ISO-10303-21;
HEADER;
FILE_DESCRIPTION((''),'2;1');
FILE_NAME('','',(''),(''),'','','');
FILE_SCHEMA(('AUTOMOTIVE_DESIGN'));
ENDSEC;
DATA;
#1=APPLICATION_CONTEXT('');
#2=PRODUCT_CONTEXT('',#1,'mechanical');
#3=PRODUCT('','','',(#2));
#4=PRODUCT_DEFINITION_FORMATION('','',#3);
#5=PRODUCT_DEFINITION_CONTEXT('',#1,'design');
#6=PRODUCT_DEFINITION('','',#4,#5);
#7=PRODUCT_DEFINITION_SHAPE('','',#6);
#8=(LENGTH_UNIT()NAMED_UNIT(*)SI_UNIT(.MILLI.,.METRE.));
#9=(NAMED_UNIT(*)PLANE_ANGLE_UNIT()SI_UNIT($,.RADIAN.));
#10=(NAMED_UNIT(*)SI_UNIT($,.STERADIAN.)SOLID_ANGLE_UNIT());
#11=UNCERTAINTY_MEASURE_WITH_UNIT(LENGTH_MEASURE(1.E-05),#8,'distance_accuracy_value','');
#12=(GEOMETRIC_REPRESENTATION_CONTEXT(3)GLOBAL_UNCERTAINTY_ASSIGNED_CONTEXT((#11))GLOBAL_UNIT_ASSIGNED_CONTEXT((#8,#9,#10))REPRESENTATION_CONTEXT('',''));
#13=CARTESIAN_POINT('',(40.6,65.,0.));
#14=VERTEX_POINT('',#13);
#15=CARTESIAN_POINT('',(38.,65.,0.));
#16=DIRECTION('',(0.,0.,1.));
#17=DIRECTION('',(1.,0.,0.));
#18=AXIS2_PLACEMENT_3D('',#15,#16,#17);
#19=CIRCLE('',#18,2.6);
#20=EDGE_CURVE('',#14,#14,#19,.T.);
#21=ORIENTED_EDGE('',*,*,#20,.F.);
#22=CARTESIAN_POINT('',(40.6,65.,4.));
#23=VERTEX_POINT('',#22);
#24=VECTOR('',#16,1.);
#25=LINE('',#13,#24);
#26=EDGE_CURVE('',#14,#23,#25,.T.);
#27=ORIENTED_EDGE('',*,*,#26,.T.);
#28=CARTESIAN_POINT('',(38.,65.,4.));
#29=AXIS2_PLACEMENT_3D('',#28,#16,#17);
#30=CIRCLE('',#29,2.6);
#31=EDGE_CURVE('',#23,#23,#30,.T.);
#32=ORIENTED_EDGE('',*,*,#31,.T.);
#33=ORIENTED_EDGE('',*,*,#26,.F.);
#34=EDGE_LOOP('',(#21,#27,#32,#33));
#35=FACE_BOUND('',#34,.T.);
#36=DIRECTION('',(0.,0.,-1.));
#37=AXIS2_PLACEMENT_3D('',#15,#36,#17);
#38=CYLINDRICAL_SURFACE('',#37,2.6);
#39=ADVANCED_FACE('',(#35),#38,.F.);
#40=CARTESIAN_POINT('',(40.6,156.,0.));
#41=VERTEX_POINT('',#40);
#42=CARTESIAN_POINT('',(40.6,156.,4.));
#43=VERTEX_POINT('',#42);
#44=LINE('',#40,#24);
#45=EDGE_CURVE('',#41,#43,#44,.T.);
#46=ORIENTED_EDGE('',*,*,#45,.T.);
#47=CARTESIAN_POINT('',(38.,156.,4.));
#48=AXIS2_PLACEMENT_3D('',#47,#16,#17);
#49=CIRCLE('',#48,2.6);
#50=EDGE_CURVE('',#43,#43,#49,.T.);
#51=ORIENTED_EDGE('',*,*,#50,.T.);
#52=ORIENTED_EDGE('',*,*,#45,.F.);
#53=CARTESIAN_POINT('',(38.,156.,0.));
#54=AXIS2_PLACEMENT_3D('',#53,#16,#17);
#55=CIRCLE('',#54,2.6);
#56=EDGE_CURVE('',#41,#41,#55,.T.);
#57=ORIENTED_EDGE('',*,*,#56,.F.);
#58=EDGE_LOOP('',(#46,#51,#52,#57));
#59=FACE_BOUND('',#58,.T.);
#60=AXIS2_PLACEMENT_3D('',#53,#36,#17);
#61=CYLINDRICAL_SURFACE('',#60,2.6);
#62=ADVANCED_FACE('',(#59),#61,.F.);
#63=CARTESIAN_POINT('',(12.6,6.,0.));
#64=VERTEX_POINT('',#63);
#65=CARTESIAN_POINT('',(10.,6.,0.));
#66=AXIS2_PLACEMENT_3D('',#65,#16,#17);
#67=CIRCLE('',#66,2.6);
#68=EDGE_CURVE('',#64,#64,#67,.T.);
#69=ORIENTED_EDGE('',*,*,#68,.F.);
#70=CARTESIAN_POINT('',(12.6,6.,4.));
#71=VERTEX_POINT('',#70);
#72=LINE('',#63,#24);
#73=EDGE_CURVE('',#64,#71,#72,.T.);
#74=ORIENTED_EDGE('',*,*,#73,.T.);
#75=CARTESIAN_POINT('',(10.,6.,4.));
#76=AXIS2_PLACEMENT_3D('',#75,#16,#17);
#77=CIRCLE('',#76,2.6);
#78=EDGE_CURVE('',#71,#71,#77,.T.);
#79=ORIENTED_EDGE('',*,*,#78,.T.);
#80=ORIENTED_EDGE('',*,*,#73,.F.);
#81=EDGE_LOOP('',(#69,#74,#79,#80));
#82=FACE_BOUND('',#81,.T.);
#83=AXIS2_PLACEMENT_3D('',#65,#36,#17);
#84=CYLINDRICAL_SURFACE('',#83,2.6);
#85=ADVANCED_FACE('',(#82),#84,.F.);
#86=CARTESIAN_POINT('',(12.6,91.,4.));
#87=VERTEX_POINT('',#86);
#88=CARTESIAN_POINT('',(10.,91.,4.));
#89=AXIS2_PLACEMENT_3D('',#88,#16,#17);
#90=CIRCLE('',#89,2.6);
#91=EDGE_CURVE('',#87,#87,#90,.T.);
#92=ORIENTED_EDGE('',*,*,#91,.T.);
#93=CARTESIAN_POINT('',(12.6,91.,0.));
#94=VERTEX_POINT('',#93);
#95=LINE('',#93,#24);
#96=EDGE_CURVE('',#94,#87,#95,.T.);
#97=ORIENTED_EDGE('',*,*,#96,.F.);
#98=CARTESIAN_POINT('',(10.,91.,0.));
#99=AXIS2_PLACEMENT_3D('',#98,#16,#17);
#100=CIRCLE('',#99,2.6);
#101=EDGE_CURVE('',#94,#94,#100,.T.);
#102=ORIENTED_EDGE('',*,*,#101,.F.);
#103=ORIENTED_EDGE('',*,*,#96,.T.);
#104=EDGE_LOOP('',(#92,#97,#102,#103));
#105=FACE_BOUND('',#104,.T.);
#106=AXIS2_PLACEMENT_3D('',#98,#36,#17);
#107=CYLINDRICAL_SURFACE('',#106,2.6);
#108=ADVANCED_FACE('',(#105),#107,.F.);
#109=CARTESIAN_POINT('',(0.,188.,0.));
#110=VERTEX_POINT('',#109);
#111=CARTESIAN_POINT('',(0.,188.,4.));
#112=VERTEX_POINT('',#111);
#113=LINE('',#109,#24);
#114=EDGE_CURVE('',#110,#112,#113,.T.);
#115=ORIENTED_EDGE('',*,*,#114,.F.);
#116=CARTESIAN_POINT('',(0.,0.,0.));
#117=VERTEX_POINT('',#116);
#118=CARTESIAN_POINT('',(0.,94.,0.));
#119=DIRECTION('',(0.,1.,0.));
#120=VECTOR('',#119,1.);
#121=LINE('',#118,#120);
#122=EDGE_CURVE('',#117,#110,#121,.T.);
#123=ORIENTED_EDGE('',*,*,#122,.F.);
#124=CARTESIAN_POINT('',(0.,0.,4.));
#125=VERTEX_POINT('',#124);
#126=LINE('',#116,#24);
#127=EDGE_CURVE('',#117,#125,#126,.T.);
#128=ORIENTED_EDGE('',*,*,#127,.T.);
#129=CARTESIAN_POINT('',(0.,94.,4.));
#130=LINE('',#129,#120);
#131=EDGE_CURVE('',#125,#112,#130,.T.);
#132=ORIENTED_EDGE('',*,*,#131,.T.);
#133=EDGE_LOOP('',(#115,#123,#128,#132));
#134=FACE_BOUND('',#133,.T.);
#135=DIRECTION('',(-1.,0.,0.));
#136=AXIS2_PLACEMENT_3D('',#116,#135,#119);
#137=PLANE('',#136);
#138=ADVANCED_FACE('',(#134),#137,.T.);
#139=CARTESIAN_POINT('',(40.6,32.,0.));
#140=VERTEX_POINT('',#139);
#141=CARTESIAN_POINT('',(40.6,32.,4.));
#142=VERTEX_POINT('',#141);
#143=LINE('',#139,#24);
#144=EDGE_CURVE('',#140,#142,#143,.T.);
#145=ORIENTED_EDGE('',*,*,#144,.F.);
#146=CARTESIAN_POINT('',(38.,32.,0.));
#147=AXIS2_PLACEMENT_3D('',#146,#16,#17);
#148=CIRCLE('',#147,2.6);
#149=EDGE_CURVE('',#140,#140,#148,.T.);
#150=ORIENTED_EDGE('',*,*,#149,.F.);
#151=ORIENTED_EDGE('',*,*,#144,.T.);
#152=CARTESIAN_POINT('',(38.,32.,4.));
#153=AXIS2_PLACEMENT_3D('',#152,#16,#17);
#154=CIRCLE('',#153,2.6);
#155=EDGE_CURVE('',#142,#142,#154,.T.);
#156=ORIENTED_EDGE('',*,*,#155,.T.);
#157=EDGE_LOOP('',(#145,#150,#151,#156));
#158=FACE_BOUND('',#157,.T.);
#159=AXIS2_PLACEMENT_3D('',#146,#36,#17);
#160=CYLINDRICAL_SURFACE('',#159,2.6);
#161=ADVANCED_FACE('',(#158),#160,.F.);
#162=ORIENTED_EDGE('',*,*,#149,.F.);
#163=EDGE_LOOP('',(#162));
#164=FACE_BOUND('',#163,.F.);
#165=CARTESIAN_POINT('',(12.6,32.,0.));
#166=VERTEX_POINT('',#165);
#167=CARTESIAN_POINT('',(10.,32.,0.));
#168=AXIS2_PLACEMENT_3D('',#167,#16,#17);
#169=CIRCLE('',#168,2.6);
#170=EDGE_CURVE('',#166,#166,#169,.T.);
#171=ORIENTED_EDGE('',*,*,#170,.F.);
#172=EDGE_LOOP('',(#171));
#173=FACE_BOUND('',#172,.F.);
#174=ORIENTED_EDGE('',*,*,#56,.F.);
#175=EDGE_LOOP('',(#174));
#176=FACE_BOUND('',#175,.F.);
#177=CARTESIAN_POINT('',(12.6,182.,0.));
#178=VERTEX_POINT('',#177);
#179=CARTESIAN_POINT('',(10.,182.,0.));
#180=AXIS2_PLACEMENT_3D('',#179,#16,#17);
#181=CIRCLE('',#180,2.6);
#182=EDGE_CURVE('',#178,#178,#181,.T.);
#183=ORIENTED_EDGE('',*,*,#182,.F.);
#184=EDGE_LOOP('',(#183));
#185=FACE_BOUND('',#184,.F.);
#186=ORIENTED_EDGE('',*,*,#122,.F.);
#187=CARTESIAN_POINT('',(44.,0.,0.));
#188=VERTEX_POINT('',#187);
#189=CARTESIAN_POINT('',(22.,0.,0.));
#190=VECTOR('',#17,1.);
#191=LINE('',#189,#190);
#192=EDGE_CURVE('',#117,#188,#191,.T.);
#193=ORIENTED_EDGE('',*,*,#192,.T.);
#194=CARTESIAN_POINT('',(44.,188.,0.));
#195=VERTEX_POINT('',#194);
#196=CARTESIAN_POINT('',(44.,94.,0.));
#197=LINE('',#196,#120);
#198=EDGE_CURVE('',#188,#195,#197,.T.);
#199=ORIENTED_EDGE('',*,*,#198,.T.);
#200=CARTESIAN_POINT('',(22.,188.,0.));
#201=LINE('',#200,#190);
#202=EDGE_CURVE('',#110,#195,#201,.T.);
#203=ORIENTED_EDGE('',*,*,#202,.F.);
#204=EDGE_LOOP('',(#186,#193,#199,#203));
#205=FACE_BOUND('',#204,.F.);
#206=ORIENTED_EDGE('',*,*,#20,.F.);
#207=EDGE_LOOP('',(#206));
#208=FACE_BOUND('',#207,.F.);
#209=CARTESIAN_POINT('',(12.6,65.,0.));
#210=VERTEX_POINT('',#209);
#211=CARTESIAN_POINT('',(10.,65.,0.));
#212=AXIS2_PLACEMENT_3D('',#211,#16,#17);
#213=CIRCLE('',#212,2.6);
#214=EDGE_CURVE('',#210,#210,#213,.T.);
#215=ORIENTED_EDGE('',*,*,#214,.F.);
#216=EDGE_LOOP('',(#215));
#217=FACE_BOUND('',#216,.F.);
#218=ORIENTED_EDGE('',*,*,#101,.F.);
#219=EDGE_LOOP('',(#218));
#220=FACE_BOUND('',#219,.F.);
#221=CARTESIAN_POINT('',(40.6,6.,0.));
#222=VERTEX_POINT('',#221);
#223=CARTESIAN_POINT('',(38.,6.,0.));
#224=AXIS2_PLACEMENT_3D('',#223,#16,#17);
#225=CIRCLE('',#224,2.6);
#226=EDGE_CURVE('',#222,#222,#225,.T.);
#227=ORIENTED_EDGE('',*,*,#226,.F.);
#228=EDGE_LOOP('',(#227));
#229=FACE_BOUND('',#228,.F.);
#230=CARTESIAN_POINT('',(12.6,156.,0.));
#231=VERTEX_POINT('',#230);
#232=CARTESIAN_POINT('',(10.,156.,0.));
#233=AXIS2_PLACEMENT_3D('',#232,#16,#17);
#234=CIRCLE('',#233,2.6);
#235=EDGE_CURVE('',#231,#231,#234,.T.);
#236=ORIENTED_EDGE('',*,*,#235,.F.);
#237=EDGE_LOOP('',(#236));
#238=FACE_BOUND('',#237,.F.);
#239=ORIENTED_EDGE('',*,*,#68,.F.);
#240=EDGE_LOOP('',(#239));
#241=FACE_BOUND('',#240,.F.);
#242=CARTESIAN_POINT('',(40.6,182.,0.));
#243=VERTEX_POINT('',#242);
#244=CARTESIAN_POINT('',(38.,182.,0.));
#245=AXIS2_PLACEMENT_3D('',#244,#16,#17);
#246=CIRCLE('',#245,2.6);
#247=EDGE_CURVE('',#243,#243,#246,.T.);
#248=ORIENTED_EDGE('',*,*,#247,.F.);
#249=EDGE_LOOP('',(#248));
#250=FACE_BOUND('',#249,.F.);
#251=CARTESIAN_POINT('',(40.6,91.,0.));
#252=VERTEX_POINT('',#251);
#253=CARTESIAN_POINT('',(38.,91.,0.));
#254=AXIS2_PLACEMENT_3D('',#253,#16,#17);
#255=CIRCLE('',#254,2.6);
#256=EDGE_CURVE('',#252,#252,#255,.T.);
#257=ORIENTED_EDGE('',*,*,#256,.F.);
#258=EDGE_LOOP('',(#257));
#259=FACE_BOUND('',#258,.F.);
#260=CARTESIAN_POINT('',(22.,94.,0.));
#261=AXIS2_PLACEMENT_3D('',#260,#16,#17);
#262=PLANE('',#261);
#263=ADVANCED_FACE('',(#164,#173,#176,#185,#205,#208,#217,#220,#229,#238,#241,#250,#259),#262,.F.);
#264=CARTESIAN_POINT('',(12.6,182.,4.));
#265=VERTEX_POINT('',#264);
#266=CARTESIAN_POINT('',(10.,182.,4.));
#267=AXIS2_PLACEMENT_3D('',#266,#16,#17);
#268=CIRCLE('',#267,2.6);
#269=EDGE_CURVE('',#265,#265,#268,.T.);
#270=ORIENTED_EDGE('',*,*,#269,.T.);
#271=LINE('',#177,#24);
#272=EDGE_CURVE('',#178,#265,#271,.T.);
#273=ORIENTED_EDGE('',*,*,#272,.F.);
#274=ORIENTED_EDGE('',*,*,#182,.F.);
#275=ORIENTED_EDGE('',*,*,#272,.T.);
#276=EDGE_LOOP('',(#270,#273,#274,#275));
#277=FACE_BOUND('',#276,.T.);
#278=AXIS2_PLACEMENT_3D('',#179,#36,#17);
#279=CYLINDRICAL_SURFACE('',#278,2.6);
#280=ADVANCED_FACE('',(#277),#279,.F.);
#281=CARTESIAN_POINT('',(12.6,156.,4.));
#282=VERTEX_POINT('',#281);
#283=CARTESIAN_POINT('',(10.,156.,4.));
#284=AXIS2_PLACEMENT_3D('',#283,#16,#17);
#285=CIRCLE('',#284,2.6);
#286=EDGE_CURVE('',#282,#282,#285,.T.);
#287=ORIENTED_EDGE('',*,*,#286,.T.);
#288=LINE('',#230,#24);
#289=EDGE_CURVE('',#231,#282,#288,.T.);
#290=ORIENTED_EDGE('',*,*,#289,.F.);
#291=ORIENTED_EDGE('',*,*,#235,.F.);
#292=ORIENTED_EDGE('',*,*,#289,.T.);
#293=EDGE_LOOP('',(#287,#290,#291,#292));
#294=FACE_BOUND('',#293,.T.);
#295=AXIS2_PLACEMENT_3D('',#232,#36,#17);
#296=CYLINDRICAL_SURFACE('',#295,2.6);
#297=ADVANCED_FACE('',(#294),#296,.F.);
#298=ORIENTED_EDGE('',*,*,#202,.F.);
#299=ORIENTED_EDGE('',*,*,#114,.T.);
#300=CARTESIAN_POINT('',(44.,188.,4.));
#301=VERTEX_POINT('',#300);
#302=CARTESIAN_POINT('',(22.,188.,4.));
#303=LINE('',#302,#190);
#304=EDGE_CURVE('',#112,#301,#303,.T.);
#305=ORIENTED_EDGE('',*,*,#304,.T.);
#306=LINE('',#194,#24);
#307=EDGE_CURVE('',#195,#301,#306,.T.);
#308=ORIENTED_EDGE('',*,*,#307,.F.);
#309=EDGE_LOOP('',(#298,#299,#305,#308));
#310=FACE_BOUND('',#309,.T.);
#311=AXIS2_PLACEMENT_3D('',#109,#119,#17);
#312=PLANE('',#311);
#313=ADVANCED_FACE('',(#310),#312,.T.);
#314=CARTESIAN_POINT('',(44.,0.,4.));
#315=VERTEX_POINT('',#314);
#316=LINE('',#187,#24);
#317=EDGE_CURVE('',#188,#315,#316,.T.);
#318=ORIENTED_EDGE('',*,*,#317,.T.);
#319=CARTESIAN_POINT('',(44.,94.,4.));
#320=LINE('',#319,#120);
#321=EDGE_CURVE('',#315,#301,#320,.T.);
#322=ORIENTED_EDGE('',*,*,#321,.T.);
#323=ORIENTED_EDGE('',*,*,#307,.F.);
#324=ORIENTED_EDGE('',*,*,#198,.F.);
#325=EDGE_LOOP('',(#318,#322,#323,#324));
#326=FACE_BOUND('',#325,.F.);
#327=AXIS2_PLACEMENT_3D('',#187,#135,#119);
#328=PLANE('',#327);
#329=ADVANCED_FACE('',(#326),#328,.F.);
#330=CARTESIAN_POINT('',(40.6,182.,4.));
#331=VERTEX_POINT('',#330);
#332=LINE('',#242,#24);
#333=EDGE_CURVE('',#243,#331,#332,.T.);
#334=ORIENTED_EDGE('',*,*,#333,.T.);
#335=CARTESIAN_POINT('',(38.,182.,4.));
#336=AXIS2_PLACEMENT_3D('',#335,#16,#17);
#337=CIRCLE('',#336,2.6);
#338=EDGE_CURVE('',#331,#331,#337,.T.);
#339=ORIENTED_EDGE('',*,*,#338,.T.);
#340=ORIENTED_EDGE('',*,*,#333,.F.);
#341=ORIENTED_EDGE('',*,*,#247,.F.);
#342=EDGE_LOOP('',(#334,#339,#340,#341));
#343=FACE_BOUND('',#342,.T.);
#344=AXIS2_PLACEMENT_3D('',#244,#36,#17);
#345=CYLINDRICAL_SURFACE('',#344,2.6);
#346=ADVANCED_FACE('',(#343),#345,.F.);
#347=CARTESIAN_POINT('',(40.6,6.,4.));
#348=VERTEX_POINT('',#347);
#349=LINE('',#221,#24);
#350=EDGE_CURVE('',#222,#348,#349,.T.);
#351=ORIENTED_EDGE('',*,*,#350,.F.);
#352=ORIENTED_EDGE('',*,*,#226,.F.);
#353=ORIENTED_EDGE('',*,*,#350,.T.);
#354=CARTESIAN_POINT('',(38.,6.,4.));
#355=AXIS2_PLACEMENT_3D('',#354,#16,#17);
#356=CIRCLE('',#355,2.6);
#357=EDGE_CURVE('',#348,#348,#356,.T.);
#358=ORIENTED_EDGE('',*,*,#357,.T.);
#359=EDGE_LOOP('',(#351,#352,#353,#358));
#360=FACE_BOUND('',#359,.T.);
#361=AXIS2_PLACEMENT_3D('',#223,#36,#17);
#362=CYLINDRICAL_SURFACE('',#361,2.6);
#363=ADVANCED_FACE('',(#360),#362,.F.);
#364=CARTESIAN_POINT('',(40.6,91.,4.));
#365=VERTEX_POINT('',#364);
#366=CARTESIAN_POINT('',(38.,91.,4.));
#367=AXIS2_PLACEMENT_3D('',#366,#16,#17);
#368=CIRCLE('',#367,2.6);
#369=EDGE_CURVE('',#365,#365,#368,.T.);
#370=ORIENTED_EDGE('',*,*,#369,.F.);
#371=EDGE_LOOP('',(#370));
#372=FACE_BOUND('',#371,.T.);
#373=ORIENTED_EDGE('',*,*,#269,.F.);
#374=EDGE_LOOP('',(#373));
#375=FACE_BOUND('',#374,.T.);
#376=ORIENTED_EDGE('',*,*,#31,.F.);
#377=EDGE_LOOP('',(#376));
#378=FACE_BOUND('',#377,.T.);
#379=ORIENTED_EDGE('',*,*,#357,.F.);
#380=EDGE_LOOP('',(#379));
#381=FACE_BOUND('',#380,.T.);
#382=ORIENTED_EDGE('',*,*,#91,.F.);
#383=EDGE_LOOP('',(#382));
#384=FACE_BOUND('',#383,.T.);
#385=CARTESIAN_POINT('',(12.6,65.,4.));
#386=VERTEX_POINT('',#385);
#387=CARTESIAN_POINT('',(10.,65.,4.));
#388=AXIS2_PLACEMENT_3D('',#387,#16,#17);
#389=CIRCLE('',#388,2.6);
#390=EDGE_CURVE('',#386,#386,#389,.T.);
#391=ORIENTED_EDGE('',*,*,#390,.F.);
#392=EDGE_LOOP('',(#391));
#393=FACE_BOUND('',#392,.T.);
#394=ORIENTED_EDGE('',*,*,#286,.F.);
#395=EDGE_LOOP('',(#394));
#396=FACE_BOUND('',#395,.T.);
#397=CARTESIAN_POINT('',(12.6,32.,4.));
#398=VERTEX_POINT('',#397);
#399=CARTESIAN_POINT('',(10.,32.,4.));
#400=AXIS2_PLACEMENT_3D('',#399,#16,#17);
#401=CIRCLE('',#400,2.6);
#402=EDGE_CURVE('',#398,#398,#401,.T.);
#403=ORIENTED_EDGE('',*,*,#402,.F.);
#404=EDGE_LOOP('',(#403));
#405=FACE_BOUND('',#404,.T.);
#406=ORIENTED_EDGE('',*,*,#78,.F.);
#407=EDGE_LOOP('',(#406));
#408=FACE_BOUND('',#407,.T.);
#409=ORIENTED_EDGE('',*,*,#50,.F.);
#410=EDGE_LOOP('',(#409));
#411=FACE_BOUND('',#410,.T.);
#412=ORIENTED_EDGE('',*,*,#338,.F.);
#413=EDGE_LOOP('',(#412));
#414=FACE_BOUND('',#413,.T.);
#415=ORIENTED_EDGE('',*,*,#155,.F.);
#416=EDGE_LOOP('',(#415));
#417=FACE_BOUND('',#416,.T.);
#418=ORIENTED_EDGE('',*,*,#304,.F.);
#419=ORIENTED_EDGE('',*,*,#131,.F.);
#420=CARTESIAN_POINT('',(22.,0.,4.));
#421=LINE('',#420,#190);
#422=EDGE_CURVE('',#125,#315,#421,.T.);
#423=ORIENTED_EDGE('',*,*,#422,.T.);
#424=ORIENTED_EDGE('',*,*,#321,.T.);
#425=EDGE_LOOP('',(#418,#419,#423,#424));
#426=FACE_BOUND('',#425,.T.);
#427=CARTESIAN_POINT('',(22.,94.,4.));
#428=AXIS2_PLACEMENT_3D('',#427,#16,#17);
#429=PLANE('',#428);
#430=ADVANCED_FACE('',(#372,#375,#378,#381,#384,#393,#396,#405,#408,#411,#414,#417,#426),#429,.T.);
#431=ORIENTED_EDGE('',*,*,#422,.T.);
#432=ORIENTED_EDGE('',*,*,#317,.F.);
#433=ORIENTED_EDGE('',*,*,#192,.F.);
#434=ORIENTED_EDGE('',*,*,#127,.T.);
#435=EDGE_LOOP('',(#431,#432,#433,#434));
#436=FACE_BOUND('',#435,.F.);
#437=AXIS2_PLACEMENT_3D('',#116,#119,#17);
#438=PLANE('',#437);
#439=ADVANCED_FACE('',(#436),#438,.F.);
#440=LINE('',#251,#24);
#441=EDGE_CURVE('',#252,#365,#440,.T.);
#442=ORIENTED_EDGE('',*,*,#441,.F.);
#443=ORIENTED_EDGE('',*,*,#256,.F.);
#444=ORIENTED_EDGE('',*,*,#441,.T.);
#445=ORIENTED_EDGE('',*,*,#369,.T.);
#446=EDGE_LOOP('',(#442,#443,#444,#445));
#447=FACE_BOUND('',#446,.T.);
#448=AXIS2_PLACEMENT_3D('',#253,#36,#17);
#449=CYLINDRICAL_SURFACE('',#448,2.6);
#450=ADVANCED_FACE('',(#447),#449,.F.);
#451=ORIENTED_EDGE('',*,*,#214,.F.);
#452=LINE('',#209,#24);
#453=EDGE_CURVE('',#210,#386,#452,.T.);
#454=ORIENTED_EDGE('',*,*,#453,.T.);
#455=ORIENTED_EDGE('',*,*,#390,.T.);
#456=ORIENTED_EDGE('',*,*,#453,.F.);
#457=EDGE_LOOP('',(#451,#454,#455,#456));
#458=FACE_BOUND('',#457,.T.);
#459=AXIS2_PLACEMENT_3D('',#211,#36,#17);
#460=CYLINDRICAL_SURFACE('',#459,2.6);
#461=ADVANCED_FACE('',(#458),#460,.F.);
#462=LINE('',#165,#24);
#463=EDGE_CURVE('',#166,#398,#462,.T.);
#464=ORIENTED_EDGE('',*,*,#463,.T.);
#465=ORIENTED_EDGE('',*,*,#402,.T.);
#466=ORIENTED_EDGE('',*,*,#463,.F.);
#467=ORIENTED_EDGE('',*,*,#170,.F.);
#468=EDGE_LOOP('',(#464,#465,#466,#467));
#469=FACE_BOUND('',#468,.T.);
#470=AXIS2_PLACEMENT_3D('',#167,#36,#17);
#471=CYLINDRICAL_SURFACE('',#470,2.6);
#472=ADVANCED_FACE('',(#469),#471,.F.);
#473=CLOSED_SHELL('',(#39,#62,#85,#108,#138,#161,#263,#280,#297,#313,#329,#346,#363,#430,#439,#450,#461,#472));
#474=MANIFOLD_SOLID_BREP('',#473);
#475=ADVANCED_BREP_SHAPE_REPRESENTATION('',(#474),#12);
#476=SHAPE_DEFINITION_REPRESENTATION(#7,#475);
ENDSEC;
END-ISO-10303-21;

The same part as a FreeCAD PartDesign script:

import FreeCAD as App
import Part
import Sketcher

V = App.Vector
Q = App.Units.Quantity

doc = App.newDocument("Part")
body = doc.addObject("PartDesign::Body", "Body")

sketch1 = body.newObject("Sketcher::SketchObject", "Sketch")
sketch1.AttachmentSupport = (doc.getObject("XY_Plane"), [""])
sketch1.MapMode = "FlatFace"
sketch1.addGeometry(Part.LineSegment(V(0, 188, 0), V(0, 0, 0)), False)
sketch1.addGeometry(Part.LineSegment(V(0, 0, 0), V(44, 0, 0)), False)
sketch1.addGeometry(Part.LineSegment(V(44, 0, 0), V(44, 188, 0)), False)
sketch1.addGeometry(Part.LineSegment(V(44, 188, 0), V(0, 188, 0)), False)
sketch1.addGeometry(Part.Circle(V(10, 6, 0), V(0, 0, 1), 2.6), False)
sketch1.addGeometry(Part.Circle(V(10, 32, 0), V(0, 0, 1), 2.6), False)
sketch1.addGeometry(Part.Circle(V(10, 65, 0), V(0, 0, 1), 2.6), False)
sketch1.addGeometry(Part.Circle(V(10, 91, 0), V(0, 0, 1), 2.6), False)
sketch1.addGeometry(Part.Circle(V(38, 6, 0), V(0, 0, 1), 2.6), False)
sketch1.addGeometry(Part.Circle(V(38, 32, 0), V(0, 0, 1), 2.6), False)
sketch1.addGeometry(Part.Circle(V(38, 65, 0), V(0, 0, 1), 2.6), False)
sketch1.addGeometry(Part.Circle(V(38, 91, 0), V(0, 0, 1), 2.6), False)
sketch1.addGeometry(Part.Circle(V(10, 156, 0), V(0, 0, 1), 2.6), False)
sketch1.addGeometry(Part.Circle(V(10, 182, 0), V(0, 0, 1), 2.6), False)
sketch1.addGeometry(Part.Circle(V(38, 156, 0), V(0, 0, 1), 2.6), False)
sketch1.addGeometry(Part.Circle(V(38, 182, 0), V(0, 0, 1), 2.6), False)
sketch1.addConstraint(Sketcher.Constraint("Coincident", 0, 2, 1, 1))
sketch1.addConstraint(Sketcher.Constraint("Coincident", 1, 2, 2, 1))
sketch1.addConstraint(Sketcher.Constraint("Coincident", 2, 2, 3, 1))
sketch1.addConstraint(Sketcher.Constraint("Coincident", 3, 2, 0, 1))
sketch1.addConstraint(Sketcher.Constraint("Vertical", 0))
sketch1.addConstraint(Sketcher.Constraint("Horizontal", 1))
sketch1.addConstraint(Sketcher.Constraint("Vertical", 2))
sketch1.addConstraint(Sketcher.Constraint("Horizontal", 3))
sketch1.addConstraint(Sketcher.Constraint("Coincident", 0, 2, -1, 1))
sketch1.addConstraint(Sketcher.Constraint("Equal", 4, 5))
sketch1.addConstraint(Sketcher.Constraint("Equal", 5, 6))
sketch1.addConstraint(Sketcher.Constraint("Equal", 6, 7))
sketch1.addConstraint(Sketcher.Constraint("Equal", 7, 8))
sketch1.addConstraint(Sketcher.Constraint("Equal", 8, 9))
sketch1.addConstraint(Sketcher.Constraint("Equal", 9, 10))
sketch1.addConstraint(Sketcher.Constraint("Equal", 10, 11))
sketch1.addConstraint(Sketcher.Constraint("Equal", 11, 12))
sketch1.addConstraint(Sketcher.Constraint("Equal", 12, 13))
sketch1.addConstraint(Sketcher.Constraint("Equal", 13, 14))
sketch1.addConstraint(Sketcher.Constraint("Equal", 14, 15))
sketch1.addConstraint(Sketcher.Constraint("Horizontal", 4, 3, 8, 3))
sketch1.addConstraint(Sketcher.Constraint("Horizontal", 5, 3, 9, 3))
sketch1.addConstraint(Sketcher.Constraint("Horizontal", 6, 3, 10, 3))
sketch1.addConstraint(Sketcher.Constraint("Horizontal", 7, 3, 11, 3))
sketch1.addConstraint(Sketcher.Constraint("Horizontal", 12, 3, 14, 3))
sketch1.addConstraint(Sketcher.Constraint("Horizontal", 13, 3, 15, 3))
sketch1.addConstraint(Sketcher.Constraint("Vertical", 4, 3, 5, 3))
sketch1.addConstraint(Sketcher.Constraint("Vertical", 5, 3, 6, 3))
sketch1.addConstraint(Sketcher.Constraint("Vertical", 6, 3, 7, 3))
sketch1.addConstraint(Sketcher.Constraint("Vertical", 8, 3, 9, 3))
sketch1.addConstraint(Sketcher.Constraint("Vertical", 9, 3, 10, 3))
sketch1.addConstraint(Sketcher.Constraint("Vertical", 10, 3, 11, 3))
sketch1.addConstraint(Sketcher.Constraint("Vertical", 7, 3, 12, 3))
sketch1.addConstraint(Sketcher.Constraint("Vertical", 12, 3, 13, 3))
sketch1.addConstraint(Sketcher.Constraint("Vertical", 11, 3, 14, 3))
sketch1.addConstraint(Sketcher.Constraint("Vertical", 14, 3, 15, 3))
sketch1.addConstraint(Sketcher.Constraint("Diameter", 4, Q("5.2 mm")))
sketch1.addConstraint(Sketcher.Constraint("DistanceX", 1, 1, 1, 2, Q("44 mm")))
sketch1.addConstraint(Sketcher.Constraint("DistanceY", 0, 2, 0, 1, Q("188 mm")))
sketch1.addConstraint(Sketcher.Constraint("DistanceX", -1, 1, 4, 3, Q("10 mm")))
sketch1.addConstraint(Sketcher.Constraint("DistanceY", -1, 1, 4, 3, Q("6 mm")))
sketch1.addConstraint(Sketcher.Constraint("DistanceY", -1, 1, 5, 3, Q("32 mm")))
sketch1.addConstraint(Sketcher.Constraint("DistanceY", -1, 1, 6, 3, Q("65 mm")))
sketch1.addConstraint(Sketcher.Constraint("DistanceY", -1, 1, 7, 3, Q("91 mm")))
sketch1.addConstraint(Sketcher.Constraint("DistanceX", -1, 1, 8, 3, Q("38 mm")))
sketch1.addConstraint(Sketcher.Constraint("DistanceY", -1, 1, 12, 3, Q("156 mm")))
sketch1.addConstraint(Sketcher.Constraint("DistanceY", -1, 1, 13, 3, Q("182 mm")))
pad1 = body.newObject("PartDesign::Pad", "Pad")
pad1.Profile = sketch1
pad1.Length = 4

doc.recompute()
